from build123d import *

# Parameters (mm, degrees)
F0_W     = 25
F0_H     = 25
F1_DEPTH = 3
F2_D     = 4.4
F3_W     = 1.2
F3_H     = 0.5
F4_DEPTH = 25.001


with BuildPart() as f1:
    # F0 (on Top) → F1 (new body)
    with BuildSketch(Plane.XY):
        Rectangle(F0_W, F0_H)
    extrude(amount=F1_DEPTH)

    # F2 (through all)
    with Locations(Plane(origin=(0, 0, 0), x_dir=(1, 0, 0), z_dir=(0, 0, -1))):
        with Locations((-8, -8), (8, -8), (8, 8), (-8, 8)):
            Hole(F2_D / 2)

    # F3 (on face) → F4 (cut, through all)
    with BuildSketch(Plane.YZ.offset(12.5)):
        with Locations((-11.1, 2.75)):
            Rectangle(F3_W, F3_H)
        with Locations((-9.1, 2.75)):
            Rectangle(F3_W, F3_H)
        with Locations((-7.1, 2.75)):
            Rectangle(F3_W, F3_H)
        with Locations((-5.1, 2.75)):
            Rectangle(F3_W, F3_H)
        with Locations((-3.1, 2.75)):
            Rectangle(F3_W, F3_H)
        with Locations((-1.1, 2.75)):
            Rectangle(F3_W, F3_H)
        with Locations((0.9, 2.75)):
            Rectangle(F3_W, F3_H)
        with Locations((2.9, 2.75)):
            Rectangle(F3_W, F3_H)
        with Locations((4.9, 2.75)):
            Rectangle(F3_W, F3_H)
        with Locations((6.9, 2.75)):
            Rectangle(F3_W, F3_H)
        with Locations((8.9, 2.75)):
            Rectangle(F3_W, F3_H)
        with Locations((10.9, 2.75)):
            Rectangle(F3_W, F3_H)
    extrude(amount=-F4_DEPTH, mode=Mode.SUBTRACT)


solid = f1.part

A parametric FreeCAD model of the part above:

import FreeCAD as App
import Part
import Sketcher


def add_polygon(sketch, points):
    """Adds a closed chain of lines whose ends are joined by coincident constraints."""
    first, n = sketch.GeometryCount, len(points)
    for a, b in zip(points, points[1:] + points[:1]):
        sketch.addGeometry(Part.LineSegment(App.Vector(*a, 0), App.Vector(*b, 0)), False)
    for i in range(n):
        sketch.addConstraint(Sketcher.Constraint("Coincident", first + i, 2, first + (i + 1) % n, 1))

doc = App.newDocument("Part")
body = doc.addObject("PartDesign::Body", "Body")

sketch1 = body.newObject("Sketcher::SketchObject", "Sketch")
sketch1.AttachmentSupport = (doc.getObject("XY_Plane"), [""])
sketch1.MapMode = "FlatFace"
add_polygon(sketch1, [(-12, 12), (-12, -12), (12, -12), (12, 12)])
sketch1.addConstraint([
    Sketcher.Constraint("Vertical", 0),
    Sketcher.Constraint("Horizontal", 1),
    Sketcher.Constraint("Vertical", 2),
    Sketcher.Constraint("Horizontal", 3),
    Sketcher.Constraint("Symmetric", 0, 2, 2, 2, -1, 1),
    Sketcher.Constraint("Equal", 3, 0),
    Sketcher.Constraint("DistanceX", 1, 1, 1, 2, 25.0),
])
pad1 = body.newObject("PartDesign::Pad", "Pad")
pad1.Profile = sketch1
pad1.Length = 3

sketch2 = body.newObject("Sketcher::SketchObject", "Sketch001")
sketch2.AttachmentSupport = (doc.getObject("XY_Plane"), [""])
sketch2.MapMode = "FlatFace"
sketch2.addGeometry([
    Part.Circle(App.Vector(-8, 8, 0), App.Vector(0, 0, 1), 2.2),
    Part.Circle(App.Vector(8, 8, 0), App.Vector(0, 0, 1), 2.2),
    Part.Circle(App.Vector(8, -8, 0), App.Vector(0, 0, 1), 2.2),
    Part.Circle(App.Vector(-8, -8, 0), App.Vector(0, 0, 1), 2.2),
], False)
sketch2.addConstraint([
    Sketcher.Constraint("Equal", 0, 1),
    Sketcher.Constraint("Equal", 1, 2),
    Sketcher.Constraint("Equal", 2, 3),
    Sketcher.Constraint("Symmetric", 0, 3, 2, 3, -1, 1),
    Sketcher.Constraint("Symmetric", 1, 3, 3, 3, -1, 1),
    Sketcher.Constraint("Symmetric", 0, 3, 1, 3, -2),
    Sketcher.Constraint("Diameter", 0, 4.4),
    Sketcher.Constraint("DistanceX", 0, 3, -1, 1, 8.0),
    Sketcher.Constraint("DistanceY", -1, 1, 0, 3, 8.0),
])
doc.recompute()
hole = body.newObject("PartDesign::Hole", "Hole")
hole.Profile = sketch2
hole.ThreadType = "None"
hole.Diameter = 4.4
hole.DepthType = "ThroughAll"
hole.Reversed = True

sketch3 = body.newObject("Sketcher::SketchObject", "Sketch002")
sketch3.AttachmentSupport = (doc.getObject("YZ_Plane"), [""])
sketch3.MapMode = "FlatFace"
sketch3.AttachmentOffset = App.Placement(App.Vector(0, 0, 12.5), App.Rotation())
add_polygon(sketch3, [(-11.7, 3), (-11.7, 2.5), (-10.5, 2.5), (-10.5, 3)])
add_polygon(sketch3, [(-9.7, 3), (-9.7, 2.5), (-8.5, 2.5), (-8.5, 3)])
add_polygon(sketch3, [(-7.7, 3), (-7.7, 2.5), (-6.5, 2.5), (-6.5, 3)])
add_polygon(sketch3, [(-5.7, 3), (-5.7, 2.5), (-4.5, 2.5), (-4.5, 3)])
add_polygon(sketch3, [(-3.7, 3), (-3.7, 2.5), (-2.5, 2.5), (-2.5, 3)])
add_polygon(sketch3, [(-1.7, 3), (-1.7, 2.5), (-0.5, 2.5), (-0.5, 3)])
add_polygon(sketch3, [(0.3, 3), (0.3, 2.5), (1.5, 2.5), (1.5, 3)])
add_polygon(sketch3, [(2.3, 3), (2.3, 2.5), (3.5, 2.5), (3.5, 3)])
add_polygon(sketch3, [(4.3, 3), (4.3, 2.5), (5.5, 2.5), (5.5, 3)])
add_polygon(sketch3, [(6.3, 3), (6.3, 2.5), (7.5, 2.5), (7.5, 3)])
add_polygon(sketch3, [(8.3, 3), (8.3, 2.5), (9.5, 2.5), (9.5, 3)])
add_polygon(sketch3, [(10.3, 3), (10.3, 2.5), (11.5, 2.5), (11.5, 3)])
sketch3.addConstraint([
    Sketcher.Constraint("Vertical", 0),
    Sketcher.Constraint("Horizontal", 1),
    Sketcher.Constraint("Vertical", 2),
    Sketcher.Constraint("Horizontal", 3),
    Sketcher.Constraint("Vertical", 4),
    Sketcher.Constraint("Horizontal", 5),
    Sketcher.Constraint("Vertical", 6),
    Sketcher.Constraint("Horizontal", 7),
    Sketcher.Constraint("Vertical", 8),
    Sketcher.Constraint("Horizontal", 9),
    Sketcher.Constraint("Vertical", 10),
    Sketcher.Constraint("Horizontal", 11),
    Sketcher.Constraint("Vertical", 12),
    Sketcher.Constraint("Horizontal", 13),
    Sketcher.Constraint("Vertical", 14),
    Sketcher.Constraint("Horizontal", 15),
    Sketcher.Constraint("Vertical", 16),
    Sketcher.Constraint("Horizontal", 17),
    Sketcher.Constraint("Vertical", 18),
    Sketcher.Constraint("Horizontal", 19),
    Sketcher.Constraint("Vertical", 20),
    Sketcher.Constraint("Horizontal", 21),
    Sketcher.Constraint("Vertical", 22),
    Sketcher.Constraint("Horizontal", 23),
    Sketcher.Constraint("Vertical", 24),
    Sketcher.Constraint("Horizontal", 25),
    Sketcher.Constraint("Vertical", 26),
    Sketcher.Constraint("Horizontal", 27),
    Sketcher.Constraint("Vertical", 28),
    Sketcher.Constraint("Horizontal", 29),
    Sketcher.Constraint("Vertical", 30),
    Sketcher.Constraint("Horizontal", 31),
    Sketcher.Constraint("Vertical", 32),
    Sketcher.Constraint("Horizontal", 33),
    Sketcher.Constraint("Vertical", 34),
    Sketcher.Constraint("Horizontal", 35),
    Sketcher.Constraint("Vertical", 36),
    Sketcher.Constraint("Horizontal", 37),
    Sketcher.Constraint("Vertical", 38),
    Sketcher.Constraint("Horizontal", 39),
    Sketcher.Constraint("Vertical", 40),
    Sketcher.Constraint("Horizontal", 41),
    Sketcher.Constraint("Vertical", 42),
    Sketcher.Constraint("Horizontal", 43),
    Sketcher.Constraint("Vertical", 44),
    Sketcher.Constraint("Horizontal", 45),
    Sketcher.Constraint("Vertical", 46),
    Sketcher.Constraint("Horizontal", 47),
    Sketcher.Constraint("Horizontal", 1, 2, 4, 2),
    Sketcher.Constraint("Horizontal", 3, 2, 6, 2),
    Sketcher.Constraint("Horizontal", 5, 2, 8, 2),
    Sketcher.Constraint("Horizontal", 7, 2, 10, 2),
    Sketcher.Constraint("Horizontal", 9, 2, 12, 2),
    Sketcher.Constraint("Horizontal", 11, 2, 14, 2),
    Sketcher.Constraint("Horizontal", 13, 2, 16, 2),
    Sketcher.Constraint("Horizontal", 15, 2, 18, 2),
    Sketcher.Constraint("Horizontal", 17, 2, 20, 2),
    Sketcher.Constraint("Horizontal", 19, 2, 22, 2),
    Sketcher.Constraint("Horizontal", 21, 2, 24, 2),
    Sketcher.Constraint("Horizontal", 23, 2, 26, 2),
    Sketcher.Constraint("Horizontal", 25, 2, 28, 2),
    Sketcher.Constraint("Horizontal", 27, 2, 30, 2),
    Sketcher.Constraint("Horizontal", 29, 2, 32, 2),
    Sketcher.Constraint("Horizontal", 31, 2, 34, 2),
    Sketcher.Constraint("Horizontal", 33, 2, 36, 2),
    Sketcher.Constraint("Horizontal", 35, 2, 38, 2),
    Sketcher.Constraint("Horizontal", 37, 2, 40, 2),
    Sketcher.Constraint("Horizontal", 39, 2, 42, 2),
    Sketcher.Constraint("Horizontal", 41, 2, 44, 2),
    Sketcher.Constraint("Horizontal", 43, 2, 46, 2),
    Sketcher.Constraint("Equal", 3, 5),
    Sketcher.Constraint("Equal", 7, 9),
    Sketcher.Constraint("Equal", 11, 13),
    Sketcher.Constraint("Equal", 15, 17),
    Sketcher.Constraint("Equal", 19, 21),
    Sketcher.Constraint("Equal", 23, 25),
    Sketcher.Constraint("Equal", 27, 29),
    Sketcher.Constraint("Equal", 31, 33),
    Sketcher.Constraint("Equal", 35, 37),
    Sketcher.Constraint("Equal", 39, 41),
    Sketcher.Constraint("Equal", 43, 45),
    Sketcher.Constraint("DistanceX", 1, 1, 1, 2, 1.2),
    Sketcher.Constraint("DistanceY", 0, 2, 0, 1, 0.5),
    Sketcher.Constraint("DistanceY", -1, 1, 2, 2, 3.0),
    Sketcher.Constraint("DistanceX", 0, 2, 4, 2, 2.0),
    Sketcher.Constraint("DistanceX", 4, 2, 8, 2, 2.0),
    Sketcher.Constraint("DistanceX", 8, 2, 12, 2, 2.0),
    Sketcher.Constraint("DistanceX", 12, 2, 16, 2, 2.0),
    Sketcher.Constraint("DistanceX", 16, 2, 20, 2, 2.0),
    Sketcher.Constraint("DistanceX", 20, 2, 24, 2, 2.0),
    Sketcher.Constraint("DistanceX", 24, 2, 28, 2, 2.0),
    Sketcher.Constraint("DistanceX", 28, 2, 32, 2, 2.0),
    Sketcher.Constraint("DistanceX", 32, 2, 36, 2, 2.0),
    Sketcher.Constraint("DistanceX", 36, 2, 40, 2, 2.0),
    Sketcher.Constraint("DistanceX", 40, 2, 44, 2, 2.0),
    Sketcher.Constraint("DistanceX", 0, 2, -1, 1, 11.7),
])
pocket1 = body.newObject("PartDesign::Pocket", "Pocket")
pocket1.Profile = sketch3
pocket1.Type = "ThroughAll"

doc.recompute()
